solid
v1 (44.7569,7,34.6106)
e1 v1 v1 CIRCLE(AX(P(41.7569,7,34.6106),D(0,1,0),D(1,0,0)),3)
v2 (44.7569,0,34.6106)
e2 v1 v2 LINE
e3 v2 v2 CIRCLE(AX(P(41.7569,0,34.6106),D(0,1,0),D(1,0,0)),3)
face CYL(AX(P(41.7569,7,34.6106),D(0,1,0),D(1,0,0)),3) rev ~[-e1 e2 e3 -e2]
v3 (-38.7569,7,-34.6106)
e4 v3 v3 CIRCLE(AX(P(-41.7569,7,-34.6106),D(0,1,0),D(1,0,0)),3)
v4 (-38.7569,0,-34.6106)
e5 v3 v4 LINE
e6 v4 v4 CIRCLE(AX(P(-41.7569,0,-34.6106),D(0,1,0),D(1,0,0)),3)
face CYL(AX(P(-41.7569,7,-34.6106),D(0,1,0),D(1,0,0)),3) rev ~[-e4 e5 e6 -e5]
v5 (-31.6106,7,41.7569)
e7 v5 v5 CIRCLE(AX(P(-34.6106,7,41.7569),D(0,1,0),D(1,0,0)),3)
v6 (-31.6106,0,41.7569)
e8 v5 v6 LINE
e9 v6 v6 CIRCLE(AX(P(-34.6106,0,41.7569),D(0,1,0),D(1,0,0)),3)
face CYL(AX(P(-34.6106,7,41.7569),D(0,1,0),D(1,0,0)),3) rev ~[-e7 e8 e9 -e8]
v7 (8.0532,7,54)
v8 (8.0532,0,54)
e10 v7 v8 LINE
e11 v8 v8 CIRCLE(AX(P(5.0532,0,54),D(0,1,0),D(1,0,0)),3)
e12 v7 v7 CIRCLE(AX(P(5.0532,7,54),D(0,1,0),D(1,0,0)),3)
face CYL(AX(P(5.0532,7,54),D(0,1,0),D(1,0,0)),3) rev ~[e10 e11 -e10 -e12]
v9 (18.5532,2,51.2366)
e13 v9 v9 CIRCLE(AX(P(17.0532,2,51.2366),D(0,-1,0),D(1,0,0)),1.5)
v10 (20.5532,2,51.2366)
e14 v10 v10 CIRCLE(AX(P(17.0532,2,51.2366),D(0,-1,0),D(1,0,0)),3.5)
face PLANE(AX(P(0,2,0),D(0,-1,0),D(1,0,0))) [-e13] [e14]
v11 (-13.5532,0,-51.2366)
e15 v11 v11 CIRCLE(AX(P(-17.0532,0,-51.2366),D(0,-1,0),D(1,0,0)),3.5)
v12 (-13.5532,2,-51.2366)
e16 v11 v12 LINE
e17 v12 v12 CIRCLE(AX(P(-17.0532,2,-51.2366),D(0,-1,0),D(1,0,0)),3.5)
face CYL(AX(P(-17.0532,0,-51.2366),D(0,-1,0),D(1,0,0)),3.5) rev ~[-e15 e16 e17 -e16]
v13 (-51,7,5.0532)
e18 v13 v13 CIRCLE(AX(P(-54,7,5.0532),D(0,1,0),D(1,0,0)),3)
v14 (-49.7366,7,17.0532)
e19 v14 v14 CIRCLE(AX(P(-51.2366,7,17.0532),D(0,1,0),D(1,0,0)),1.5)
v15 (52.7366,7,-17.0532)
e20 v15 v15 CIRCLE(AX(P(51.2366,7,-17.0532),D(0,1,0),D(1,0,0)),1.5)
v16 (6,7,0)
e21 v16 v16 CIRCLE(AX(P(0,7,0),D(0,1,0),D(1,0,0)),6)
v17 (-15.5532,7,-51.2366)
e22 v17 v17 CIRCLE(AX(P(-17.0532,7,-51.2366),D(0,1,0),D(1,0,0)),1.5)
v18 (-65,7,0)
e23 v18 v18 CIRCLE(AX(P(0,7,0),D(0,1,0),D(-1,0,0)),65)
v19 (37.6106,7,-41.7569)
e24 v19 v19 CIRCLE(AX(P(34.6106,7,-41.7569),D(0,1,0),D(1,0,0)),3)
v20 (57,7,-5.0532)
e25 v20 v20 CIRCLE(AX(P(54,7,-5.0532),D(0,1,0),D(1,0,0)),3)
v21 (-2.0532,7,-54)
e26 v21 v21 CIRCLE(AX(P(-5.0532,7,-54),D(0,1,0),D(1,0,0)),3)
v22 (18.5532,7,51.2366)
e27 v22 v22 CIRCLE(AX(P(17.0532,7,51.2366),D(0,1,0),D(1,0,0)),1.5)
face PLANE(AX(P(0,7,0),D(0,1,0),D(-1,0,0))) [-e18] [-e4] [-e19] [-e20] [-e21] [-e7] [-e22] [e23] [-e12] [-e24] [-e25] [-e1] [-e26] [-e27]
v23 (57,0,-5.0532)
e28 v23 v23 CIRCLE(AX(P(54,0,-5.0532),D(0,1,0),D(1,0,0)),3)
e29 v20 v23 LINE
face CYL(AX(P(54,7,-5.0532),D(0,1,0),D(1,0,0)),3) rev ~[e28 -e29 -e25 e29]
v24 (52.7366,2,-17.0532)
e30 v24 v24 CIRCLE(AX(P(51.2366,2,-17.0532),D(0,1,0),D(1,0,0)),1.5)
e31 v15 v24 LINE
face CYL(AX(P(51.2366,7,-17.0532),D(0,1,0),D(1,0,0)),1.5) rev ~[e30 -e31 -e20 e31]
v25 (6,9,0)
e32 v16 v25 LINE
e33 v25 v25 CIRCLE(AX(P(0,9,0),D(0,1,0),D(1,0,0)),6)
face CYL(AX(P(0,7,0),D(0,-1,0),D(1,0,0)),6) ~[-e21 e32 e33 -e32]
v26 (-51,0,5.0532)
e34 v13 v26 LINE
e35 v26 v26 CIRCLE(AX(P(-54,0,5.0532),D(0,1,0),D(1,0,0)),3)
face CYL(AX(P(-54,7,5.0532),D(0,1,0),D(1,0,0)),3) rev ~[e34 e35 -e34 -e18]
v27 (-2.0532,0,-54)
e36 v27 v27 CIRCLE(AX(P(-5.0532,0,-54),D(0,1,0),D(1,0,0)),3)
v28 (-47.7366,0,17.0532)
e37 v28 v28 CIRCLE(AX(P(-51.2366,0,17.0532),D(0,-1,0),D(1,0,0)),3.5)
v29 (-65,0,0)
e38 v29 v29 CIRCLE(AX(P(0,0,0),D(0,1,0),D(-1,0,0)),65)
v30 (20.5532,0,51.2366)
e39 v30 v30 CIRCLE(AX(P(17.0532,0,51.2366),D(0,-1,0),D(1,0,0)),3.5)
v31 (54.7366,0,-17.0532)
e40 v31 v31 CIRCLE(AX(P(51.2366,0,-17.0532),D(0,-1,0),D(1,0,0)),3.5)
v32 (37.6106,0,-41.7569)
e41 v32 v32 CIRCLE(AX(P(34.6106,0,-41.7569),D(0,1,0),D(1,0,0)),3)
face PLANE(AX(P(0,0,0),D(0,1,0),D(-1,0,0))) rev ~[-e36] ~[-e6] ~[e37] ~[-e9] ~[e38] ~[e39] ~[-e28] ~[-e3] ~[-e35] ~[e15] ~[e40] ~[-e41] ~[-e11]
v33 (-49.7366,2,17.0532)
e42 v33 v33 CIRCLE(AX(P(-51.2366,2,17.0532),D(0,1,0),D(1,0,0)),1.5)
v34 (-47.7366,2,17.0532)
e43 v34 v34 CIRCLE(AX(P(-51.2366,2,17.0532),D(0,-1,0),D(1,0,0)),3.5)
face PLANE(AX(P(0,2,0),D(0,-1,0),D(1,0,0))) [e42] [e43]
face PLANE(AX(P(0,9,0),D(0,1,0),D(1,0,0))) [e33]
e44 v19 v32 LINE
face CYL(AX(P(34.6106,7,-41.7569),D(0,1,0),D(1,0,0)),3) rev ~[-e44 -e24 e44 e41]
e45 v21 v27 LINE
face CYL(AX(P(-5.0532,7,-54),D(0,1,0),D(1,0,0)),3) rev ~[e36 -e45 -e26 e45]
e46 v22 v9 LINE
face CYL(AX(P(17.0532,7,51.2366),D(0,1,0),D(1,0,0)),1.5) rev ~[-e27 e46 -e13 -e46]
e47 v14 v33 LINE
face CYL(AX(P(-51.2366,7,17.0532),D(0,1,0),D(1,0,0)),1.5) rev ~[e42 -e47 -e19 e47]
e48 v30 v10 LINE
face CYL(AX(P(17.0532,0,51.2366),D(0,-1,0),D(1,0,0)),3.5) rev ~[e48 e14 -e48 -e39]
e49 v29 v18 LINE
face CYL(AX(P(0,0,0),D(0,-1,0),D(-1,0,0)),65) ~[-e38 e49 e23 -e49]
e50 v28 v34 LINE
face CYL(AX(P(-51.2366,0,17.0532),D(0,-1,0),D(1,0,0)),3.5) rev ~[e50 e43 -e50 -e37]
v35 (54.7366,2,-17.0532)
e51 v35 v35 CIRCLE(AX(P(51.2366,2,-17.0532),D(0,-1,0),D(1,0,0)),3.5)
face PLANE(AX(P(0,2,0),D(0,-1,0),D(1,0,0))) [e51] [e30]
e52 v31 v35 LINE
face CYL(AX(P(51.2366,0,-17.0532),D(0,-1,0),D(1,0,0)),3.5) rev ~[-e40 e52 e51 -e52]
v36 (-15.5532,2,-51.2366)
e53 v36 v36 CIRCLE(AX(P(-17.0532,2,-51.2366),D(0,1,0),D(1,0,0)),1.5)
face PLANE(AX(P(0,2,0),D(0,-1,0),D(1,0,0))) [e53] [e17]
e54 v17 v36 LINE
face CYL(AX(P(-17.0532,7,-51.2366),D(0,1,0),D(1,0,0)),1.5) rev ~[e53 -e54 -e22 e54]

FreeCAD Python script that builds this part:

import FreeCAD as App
import Part
import Sketcher
from FreeCAD import Vector
Q = App.Units.Quantity

doc = App.newDocument("Part")
body = doc.addObject("PartDesign::Body", "Body")

# Sketch on XZ plane
sketch1 = doc.addObject("Sketcher::SketchObject", "Sketch")
body.addObject(sketch1)
sketch1.AttachmentSupport = (doc.XZ_Plane, [""])
sketch1.MapMode = "FlatFace"
sketch1.addGeometry(Part.Circle(Vector(0, 0, 0), Vector(0, 0, 1), 65), False)
sketch1.addConstraint([
    Sketcher.Constraint("Coincident", 0, 3, -1, 1),
    Sketcher.Constraint("Diameter", 0, Q("130 mm")),
])
pad1 = doc.addObject("PartDesign::Pad", "Pad")
body.addObject(pad1)
pad1.Profile = sketch1
pad1.Length = 7
pad1.Reversed = True

# Sketch on XZ plane
sketch2 = doc.addObject("Sketcher::SketchObject", "Sketch001")
body.addObject(sketch2)
sketch2.AttachmentSupport = (doc.XZ_Plane, [""])
sketch2.MapMode = "FlatFace"
sketch2.AttachmentOffset = App.Placement(Vector(0, 0, -7), App.Rotation())
sketch2.addGeometry([
    Part.Circle(Vector(-54, 5.0532, 0), Vector(0, 0, 1), 3),  # 0
    Part.Circle(Vector(-34.6106, 41.7569, 0), Vector(0, 0, 1), 3),  # 1
    Part.Circle(Vector(5.0532, 54, 0), Vector(0, 0, 1), 3),  # 2
    Part.Circle(Vector(41.7569, 34.6106, 0), Vector(0, 0, 1), 3),  # 3
    Part.Circle(Vector(54, -5.0532, 0), Vector(0, 0, 1), 3),  # 4
    Part.Circle(Vector(34.6106, -41.7569, 0), Vector(0, 0, 1), 3),  # 5
    Part.Circle(Vector(-5.0532, -54, 0), Vector(0, 0, 1), 3),  # 6
    Part.Circle(Vector(-41.7569, -34.6106, 0), Vector(0, 0, 1), 3),  # 7
], False)
sketch2.addConstraint([
    Sketcher.Constraint("Equal", 0, 1),
    Sketcher.Constraint("Equal", 1, 2),
    Sketcher.Constraint("Equal", 2, 3),
    Sketcher.Constraint("Equal", 3, 4),
    Sketcher.Constraint("Equal", 4, 5),
    Sketcher.Constraint("Equal", 5, 6),
    Sketcher.Constraint("Equal", 6, 7),
    Sketcher.Constraint("Symmetric", 0, 3, 4, 3, -1, 1),
    Sketcher.Constraint("Symmetric", 1, 3, 5, 3, -1, 1),
    Sketcher.Constraint("Symmetric", 2, 3, 6, 3, -1, 1),
    Sketcher.Constraint("Symmetric", 3, 3, 7, 3, -1, 1),
    Sketcher.Constraint("Diameter", 0, Q("6 mm")),
    Sketcher.Constraint("DistanceX", 0, 3, -1, 1, Q("54 mm")),
    Sketcher.Constraint("DistanceY", -1, 1, 2, 3, Q("54 mm")),
    Sketcher.Constraint("DistanceY", 4, 3, 1, 3, Q("46.81 mm")),
    Sketcher.Constraint("DistanceX", 6, 3, 3, 3, Q("46.81 mm")),
    Sketcher.Constraint("DistanceY", -1, 1, 1, 3, Q("41.757 mm")),
    Sketcher.Constraint("DistanceX", -1, 1, 3, 3, Q("41.757 mm")),
    Sketcher.Constraint("DistanceX", 1, 3, -1, 1, Q("34.6106 mm")),
    Sketcher.Constraint("DistanceY", -1, 1, 3, 3, Q("34.6106 mm")),
])
pocket1 = doc.addObject("PartDesign::Pocket", "Pocket")
body.addObject(pocket1)
pocket1.Profile = sketch2
pocket1.Type = "ThroughAll"
pocket1.Reversed = True

# Sketch on XZ plane
sketch3 = doc.addObject("Sketcher::SketchObject", "Sketch002")
body.addObject(sketch3)
sketch3.AttachmentSupport = (doc.XZ_Plane, [""])
sketch3.MapMode = "FlatFace"
sketch3.AttachmentOffset = App.Placement(Vector(0, 0, -7), App.Rotation())
sketch3.addGeometry([
    Part.Circle(Vector(-51.2366, 17.0532, 0), Vector(0, 0, 1), 1.5),
    Part.Circle(Vector(17.0532, 51.2366, 0), Vector(0, 0, 1), 1.5),
    Part.Circle(Vector(51.2366, -17.0532, 0), Vector(0, 0, 1), 1.5),
    Part.Circle(Vector(-17.0532, -51.2366, 0), Vector(0, 0, 1), 1.5),
], False)
sketch3.addConstraint([
    Sketcher.Constraint("Equal", 0, 1),
    Sketcher.Constraint("Equal", 1, 2),
    Sketcher.Constraint("Equal", 2, 3),
    Sketcher.Constraint("Symmetric", 0, 3, 2, 3, -1, 1),
    Sketcher.Constraint("Symmetric", 1, 3, 3, 3, -1, 1),
    Sketcher.Constraint("Diameter", 0, Q("3 mm")),
    Sketcher.Constraint("DistanceX", 0, 3, -1, 1, Q("51.2366 mm")),
    Sketcher.Constraint("DistanceY", -1, 1, 0, 3, Q("17.0532 mm")),
    Sketcher.Constraint("DistanceX", -1, 1, 1, 3, Q("17.0532 mm")),
    Sketcher.Constraint("DistanceY", -1, 1, 1, 3, Q("51.2366 mm")),
])
pocket2 = doc.addObject("PartDesign::Pocket", "Pocket001")
body.addObject(pocket2)
pocket2.Profile = sketch3
pocket2.Type = "ThroughAll"
pocket2.Reversed = True

# Sketch on XZ plane
sketch4 = doc.addObject("Sketcher::SketchObject", "Sketch003")
body.addObject(sketch4)
sketch4.AttachmentSupport = (doc.XZ_Plane, [""])
sketch4.MapMode = "FlatFace"
sketch4.addGeometry([
    Part.Circle(Vector(17.0532, 51.2366, 0), Vector(0, 0, 1), 3.5),  # 0
    Part.Circle(Vector(17.0532, 51.2366, 0), Vector(0, 0, 1), 1.5),  # 1
    Part.Circle(Vector(-51.2366, 17.0532, 0), Vector(0, 0, 1), 3.5),  # 2
    Part.Circle(Vector(-17.0532, -51.2366, 0), Vector(0, 0, 1), 3.5),  # 3
    Part.Circle(Vector(51.2366, -17.0532, 0), Vector(0, 0, 1), 3.5),  # 4
], False)
sketch4.addConstraint([
    Sketcher.Constraint("Coincident", 1, 3, 0, 3),
    Sketcher.Constraint("Equal", 0, 2),
    Sketcher.Constraint("Equal", 2, 3),
    Sketcher.Constraint("Equal", 3, 4),
    Sketcher.Constraint("Symmetric", 0, 3, 3, 3, -1, 1),
    Sketcher.Constraint("Symmetric", 2, 3, 4, 3, -1, 1),
    Sketcher.Constraint("Diameter", 0, Q("7 mm")),
    Sketcher.Constraint("Diameter", 1, Q("3 mm")),
    Sketcher.Constraint("DistanceX", -1, 1, 0, 3, Q("17.0532 mm")),
    Sketcher.Constraint("DistanceY", -1, 1, 0, 3, Q("51.2366 mm")),
    Sketcher.Constraint("DistanceX", 2, 3, -1, 1, Q("51.2366 mm")),
    Sketcher.Constraint("DistanceY", -1, 1, 2, 3, Q("17.0532 mm")),
])
pocket3 = doc.addObject("PartDesign::Pocket", "Pocket002")
body.addObject(pocket3)
pocket3.Profile = sketch4
pocket3.Length = 2

# Sketch on XZ plane
sketch5 = doc.addObject("Sketcher::SketchObject", "Sketch004")
body.addObject(sketch5)
sketch5.AttachmentSupport = (doc.XZ_Plane, [""])
sketch5.MapMode = "FlatFace"
sketch5.AttachmentOffset = App.Placement(Vector(0, 0, -7), App.Rotation())
sketch5.addGeometry(Part.Circle(Vector(0, 0, 0), Vector(0, 0, 1), 6), False)
sketch5.addConstraint([
    Sketcher.Constraint("Coincident", 0, 3, -1, 1),
    Sketcher.Constraint("Diameter", 0, Q("12 mm")),
])
pad2 = doc.addObject("PartDesign::Pad", "Pad001")
body.addObject(pad2)
pad2.Profile = sketch5
pad2.Length = 2
pad2.Reversed = True

doc.recompute()
